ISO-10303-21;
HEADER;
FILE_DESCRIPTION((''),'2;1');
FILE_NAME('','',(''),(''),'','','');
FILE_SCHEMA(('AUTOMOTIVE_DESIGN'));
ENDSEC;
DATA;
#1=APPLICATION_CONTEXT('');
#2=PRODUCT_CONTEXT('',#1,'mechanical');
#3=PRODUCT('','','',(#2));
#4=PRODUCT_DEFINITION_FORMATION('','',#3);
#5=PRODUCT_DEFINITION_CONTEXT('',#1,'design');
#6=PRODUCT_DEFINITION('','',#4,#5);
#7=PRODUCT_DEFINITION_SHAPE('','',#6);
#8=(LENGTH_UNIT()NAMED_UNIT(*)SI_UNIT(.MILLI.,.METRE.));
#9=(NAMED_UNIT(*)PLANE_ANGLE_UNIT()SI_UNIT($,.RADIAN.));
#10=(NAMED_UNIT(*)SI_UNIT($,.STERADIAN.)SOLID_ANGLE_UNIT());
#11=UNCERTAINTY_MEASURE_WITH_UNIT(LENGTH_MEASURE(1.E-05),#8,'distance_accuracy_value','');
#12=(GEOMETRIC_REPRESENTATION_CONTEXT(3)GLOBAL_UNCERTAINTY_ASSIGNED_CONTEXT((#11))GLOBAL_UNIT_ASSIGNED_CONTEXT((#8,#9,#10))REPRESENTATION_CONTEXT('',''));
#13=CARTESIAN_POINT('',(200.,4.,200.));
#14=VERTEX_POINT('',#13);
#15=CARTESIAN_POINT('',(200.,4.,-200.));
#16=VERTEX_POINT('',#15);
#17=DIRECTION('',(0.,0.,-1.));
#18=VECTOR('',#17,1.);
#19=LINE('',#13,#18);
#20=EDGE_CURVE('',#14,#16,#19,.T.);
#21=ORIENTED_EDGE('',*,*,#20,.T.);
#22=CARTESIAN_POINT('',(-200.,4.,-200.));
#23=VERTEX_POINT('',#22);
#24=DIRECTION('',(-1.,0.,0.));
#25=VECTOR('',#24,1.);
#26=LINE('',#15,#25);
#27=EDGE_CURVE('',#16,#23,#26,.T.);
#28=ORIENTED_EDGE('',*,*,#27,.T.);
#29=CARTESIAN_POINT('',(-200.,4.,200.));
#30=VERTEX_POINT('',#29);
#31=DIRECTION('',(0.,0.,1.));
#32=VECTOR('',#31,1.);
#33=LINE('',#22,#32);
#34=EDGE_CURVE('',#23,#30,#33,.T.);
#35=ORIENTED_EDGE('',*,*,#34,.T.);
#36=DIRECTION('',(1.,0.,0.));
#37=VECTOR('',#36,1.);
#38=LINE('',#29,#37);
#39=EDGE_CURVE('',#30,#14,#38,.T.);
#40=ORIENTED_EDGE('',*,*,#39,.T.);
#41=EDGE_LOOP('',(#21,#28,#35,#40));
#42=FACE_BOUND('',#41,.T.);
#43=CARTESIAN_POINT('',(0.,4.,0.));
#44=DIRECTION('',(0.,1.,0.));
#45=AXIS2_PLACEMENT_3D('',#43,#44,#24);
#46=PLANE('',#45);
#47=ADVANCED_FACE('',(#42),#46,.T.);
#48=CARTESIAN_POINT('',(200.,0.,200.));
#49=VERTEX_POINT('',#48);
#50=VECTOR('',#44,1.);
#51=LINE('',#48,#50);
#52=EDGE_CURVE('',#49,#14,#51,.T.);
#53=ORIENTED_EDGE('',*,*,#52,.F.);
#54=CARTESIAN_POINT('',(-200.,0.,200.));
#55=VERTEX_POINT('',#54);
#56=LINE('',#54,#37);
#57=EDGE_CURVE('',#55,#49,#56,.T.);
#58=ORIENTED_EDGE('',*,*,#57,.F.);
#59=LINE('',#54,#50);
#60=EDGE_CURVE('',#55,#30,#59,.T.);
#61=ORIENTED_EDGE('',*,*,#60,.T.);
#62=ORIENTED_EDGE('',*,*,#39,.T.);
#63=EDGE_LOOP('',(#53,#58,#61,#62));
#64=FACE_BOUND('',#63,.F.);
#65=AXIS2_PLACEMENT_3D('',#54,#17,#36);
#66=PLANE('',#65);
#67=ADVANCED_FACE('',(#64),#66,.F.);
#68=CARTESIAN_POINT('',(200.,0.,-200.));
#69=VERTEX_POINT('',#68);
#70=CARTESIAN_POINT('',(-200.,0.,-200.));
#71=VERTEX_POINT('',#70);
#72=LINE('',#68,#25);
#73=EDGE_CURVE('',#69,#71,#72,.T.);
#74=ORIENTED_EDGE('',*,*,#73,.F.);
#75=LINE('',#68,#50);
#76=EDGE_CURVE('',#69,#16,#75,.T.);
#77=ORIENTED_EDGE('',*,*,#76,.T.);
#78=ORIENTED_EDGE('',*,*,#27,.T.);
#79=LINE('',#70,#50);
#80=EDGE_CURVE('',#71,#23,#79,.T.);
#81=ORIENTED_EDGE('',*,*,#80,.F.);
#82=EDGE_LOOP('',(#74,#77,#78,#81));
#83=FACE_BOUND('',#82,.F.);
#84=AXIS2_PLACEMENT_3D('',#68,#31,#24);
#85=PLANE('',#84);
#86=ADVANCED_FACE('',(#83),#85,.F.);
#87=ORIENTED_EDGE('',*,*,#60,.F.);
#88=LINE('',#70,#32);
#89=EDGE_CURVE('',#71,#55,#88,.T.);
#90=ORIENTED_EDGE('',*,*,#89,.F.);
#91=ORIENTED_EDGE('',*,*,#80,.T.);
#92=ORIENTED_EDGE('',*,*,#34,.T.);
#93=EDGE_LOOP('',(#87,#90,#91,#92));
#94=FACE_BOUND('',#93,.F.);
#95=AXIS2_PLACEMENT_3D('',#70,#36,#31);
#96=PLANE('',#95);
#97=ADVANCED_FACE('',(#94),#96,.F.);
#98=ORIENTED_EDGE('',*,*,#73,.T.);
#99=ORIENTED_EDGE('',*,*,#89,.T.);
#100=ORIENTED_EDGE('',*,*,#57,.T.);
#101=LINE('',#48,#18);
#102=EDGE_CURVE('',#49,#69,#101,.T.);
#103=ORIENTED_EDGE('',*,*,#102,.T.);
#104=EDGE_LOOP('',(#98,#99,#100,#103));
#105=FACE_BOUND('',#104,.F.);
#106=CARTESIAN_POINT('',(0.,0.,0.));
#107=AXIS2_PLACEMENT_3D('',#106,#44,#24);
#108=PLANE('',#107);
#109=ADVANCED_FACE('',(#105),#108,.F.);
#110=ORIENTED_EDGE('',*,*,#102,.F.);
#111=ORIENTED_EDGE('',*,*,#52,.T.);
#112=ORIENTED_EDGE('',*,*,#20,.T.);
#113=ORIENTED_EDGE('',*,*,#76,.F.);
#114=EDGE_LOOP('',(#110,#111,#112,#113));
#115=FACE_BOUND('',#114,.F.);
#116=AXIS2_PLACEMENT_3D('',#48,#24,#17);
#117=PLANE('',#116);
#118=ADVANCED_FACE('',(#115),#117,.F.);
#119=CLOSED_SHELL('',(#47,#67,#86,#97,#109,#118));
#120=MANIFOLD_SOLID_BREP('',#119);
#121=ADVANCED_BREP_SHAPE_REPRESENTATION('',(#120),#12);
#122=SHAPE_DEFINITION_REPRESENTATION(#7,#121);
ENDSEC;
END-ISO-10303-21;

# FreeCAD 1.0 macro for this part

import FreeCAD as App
import Part
import Sketcher

doc = App.newDocument("Part")
body = doc.addObject("PartDesign::Body", "Body")

# Sketch on XZ plane
sketch1 = body.newObject("Sketcher::SketchObject", "Sketch")
sketch1.AttachmentSupport = (doc.getObject("XZ_Plane"), [""])
sketch1.MapMode = "FlatFace"
sketch1.addGeometry(Part.LineSegment(App.Vector(-200, -200, 0), App.Vector(-200, 200, 0)), False)
sketch1.addGeometry(Part.LineSegment(App.Vector(-200, 200, 0), App.Vector(200, 200, 0)), False)
sketch1.addGeometry(Part.LineSegment(App.Vector(200, 200, 0), App.Vector(200, -200, 0)), False)
sketch1.addGeometry(Part.LineSegment(App.Vector(200, -200, 0), App.Vector(-200, -200, 0)), False)
sketch1.addConstraint(Sketcher.Constraint("Coincident", 0, 2, 1, 1))
sketch1.addConstraint(Sketcher.Constraint("Coincident", 1, 2, 2, 1))
sketch1.addConstraint(Sketcher.Constraint("Coincident", 2, 2, 3, 1))
sketch1.addConstraint(Sketcher.Constraint("Coincident", 3, 2, 0, 1))
sketch1.addConstraint(Sketcher.Constraint("Vertical", 0))
sketch1.addConstraint(Sketcher.Constraint("Horizontal", 1))
sketch1.addConstraint(Sketcher.Constraint("Vertical", 2))
sketch1.addConstraint(Sketcher.Constraint("Horizontal", 3))
sketch1.addConstraint(Sketcher.Constraint("Symmetric", 0, 2, 2, 2, -1, 1))
sketch1.addConstraint(Sketcher.Constraint("Equal", 3, 0))
sketch1.addConstraint(Sketcher.Constraint("DistanceX", 1, 1, 1, 2, 400.0))
pad1 = body.newObject("PartDesign::Pad", "Pad")
pad1.Profile = sketch1
pad1.Length = 4
pad1.Reversed = True

doc.recompute()
